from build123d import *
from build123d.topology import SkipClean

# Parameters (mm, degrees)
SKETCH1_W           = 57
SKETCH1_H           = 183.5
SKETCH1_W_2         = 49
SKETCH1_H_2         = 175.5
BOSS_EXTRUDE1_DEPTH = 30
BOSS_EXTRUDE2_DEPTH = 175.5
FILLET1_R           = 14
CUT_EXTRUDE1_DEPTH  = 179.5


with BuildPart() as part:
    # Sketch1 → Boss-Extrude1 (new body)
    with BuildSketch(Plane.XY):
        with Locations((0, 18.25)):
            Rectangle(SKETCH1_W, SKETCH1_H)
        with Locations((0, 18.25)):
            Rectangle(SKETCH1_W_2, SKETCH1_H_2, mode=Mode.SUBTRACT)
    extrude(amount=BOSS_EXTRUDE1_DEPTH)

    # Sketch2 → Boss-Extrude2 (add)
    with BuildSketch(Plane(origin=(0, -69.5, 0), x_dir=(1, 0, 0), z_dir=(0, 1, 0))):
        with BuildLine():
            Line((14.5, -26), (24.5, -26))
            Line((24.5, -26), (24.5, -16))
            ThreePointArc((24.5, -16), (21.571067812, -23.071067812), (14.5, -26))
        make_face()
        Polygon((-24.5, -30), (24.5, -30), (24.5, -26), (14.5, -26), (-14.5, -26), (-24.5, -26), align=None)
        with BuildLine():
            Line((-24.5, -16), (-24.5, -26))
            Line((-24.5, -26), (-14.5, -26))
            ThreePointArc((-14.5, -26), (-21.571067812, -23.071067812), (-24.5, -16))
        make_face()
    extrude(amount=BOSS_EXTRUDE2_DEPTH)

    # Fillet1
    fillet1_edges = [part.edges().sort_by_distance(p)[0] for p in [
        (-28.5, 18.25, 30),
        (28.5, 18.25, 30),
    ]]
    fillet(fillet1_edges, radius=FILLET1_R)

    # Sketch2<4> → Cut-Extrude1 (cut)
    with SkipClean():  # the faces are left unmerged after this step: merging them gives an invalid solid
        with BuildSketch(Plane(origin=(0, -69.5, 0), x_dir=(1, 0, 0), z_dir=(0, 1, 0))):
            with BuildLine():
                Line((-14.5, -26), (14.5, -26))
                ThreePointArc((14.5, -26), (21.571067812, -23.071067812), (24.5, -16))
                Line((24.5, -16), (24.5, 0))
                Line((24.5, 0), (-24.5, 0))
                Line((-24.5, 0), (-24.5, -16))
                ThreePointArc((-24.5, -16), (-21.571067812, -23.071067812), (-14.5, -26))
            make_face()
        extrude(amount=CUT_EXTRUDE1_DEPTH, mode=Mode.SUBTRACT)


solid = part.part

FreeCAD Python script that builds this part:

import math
import FreeCAD as App
import Part
import Sketcher
from FreeCAD import Vector


def edges_at(feature, points):
    """Names of the edges that pass closest to the given points."""
    edges = feature.Shape.Edges
    near = lambda p: min(range(len(edges)), key=lambda i: edges[i].distToShape(Part.Vertex(*p))[0])
    return sorted({f"Edge{near(p) + 1}" for p in points})


def add_polygon(sketch, points):
    """Adds a closed chain of lines whose ends are joined by coincident constraints."""
    first, n = sketch.GeometryCount, len(points)
    for a, b in zip(points, points[1:] + points[:1]):
        sketch.addGeometry(Part.LineSegment(App.Vector(*a, 0), App.Vector(*b, 0)), False)
    for i in range(n):
        sketch.addConstraint(Sketcher.Constraint("Coincident", first + i, 2, first + (i + 1) % n, 1))

doc = App.newDocument("Part")
params = doc.addObject("Spreadsheet::Sheet", "Params")
for row, (alias, value) in enumerate([
    ("sketch1_width", "57 mm"),
    ("sketch1_width2", "49 mm"),
    ("sketch1_height", "183.5 mm"),
    ("sketch1_height2", "175.5 mm"),
    ("pad1_length", "30 mm"),
    ("sketch2_radius", "10 mm"),
    ("sketch2_width", "29 mm"),
    ("sketch2_height", "14 mm"),
    ("pad2_length", "175.5 mm"),
    ("fillet_radius", "14 mm"),
    ("sketch3_radius", "10 mm"),
    ("sketch3_width", "29 mm"),
    ("sketch3_height", "16 mm"),
    ("pocket1_length", "179.5 mm"),
], start=1):
    params.set(f"A{row}", alias)
    params.set(f"B{row}", "=" + value)
    params.setAlias(f"B{row}", alias)

body = doc.addObject("PartDesign::Body", "Body")

# Sketch on XY plane
sketch1 = body.newObject("Sketcher::SketchObject", "Sketch")
sketch1.AttachmentSupport = (doc.getObject("XY_Plane"), [""])
sketch1.MapMode = "FlatFace"
add_polygon(sketch1, [(-28, 110), (-28, -74), (28, -74), (28, 110)])  # lines 0-3
add_polygon(sketch1, [(24, -70), (-24, -70), (-24, 106), (24, 106)])  # lines 4-7
sketch1.addConstraint([
    Sketcher.Constraint("Vertical", 0),
    Sketcher.Constraint("Horizontal", 1),
    Sketcher.Constraint("Vertical", 2),
    Sketcher.Constraint("Horizontal", 3),
    Sketcher.Constraint("Horizontal", 4),
    Sketcher.Constraint("Vertical", 5),
    Sketcher.Constraint("Horizontal", 6),
    Sketcher.Constraint("Vertical", 7),
    Sketcher.Constraint("DistanceX", 1, 1, 1, 2, 57.0),
    Sketcher.Constraint("DistanceX", 4, 2, 4, 1, 49.0),
    Sketcher.Constraint("DistanceY", 0, 2, 0, 1, 183.5),
    Sketcher.Constraint("DistanceY", 5, 1, 5, 2, 175.5),
    Sketcher.Constraint("DistanceY", -1, 1, 2, 2, 110.0),
    Sketcher.Constraint("DistanceY", -1, 1, 5, 2, 106.0),
    Sketcher.Constraint("DistanceX", 0, 2, 4, 2, 4.0),
    Sketcher.Constraint("DistanceX", 0, 2, -1, 1, 28.5),
])
sketch1.setExpression("Constraints[16]", "Params.sketch1_width")
sketch1.setExpression("Constraints[17]", "Params.sketch1_width2")
sketch1.setExpression("Constraints[18]", "Params.sketch1_height")
sketch1.setExpression("Constraints[19]", "Params.sketch1_height2")
pad1 = body.newObject("PartDesign::Pad", "Pad")
pad1.Profile = sketch1
pad1.setExpression("Length", "Params.pad1_length")

# Sketch on XZ plane
sketch2 = body.newObject("Sketcher::SketchObject", "Sketch001")
sketch2.AttachmentSupport = (doc.getObject("XZ_Plane"), [""])
sketch2.MapMode = "FlatFace"
sketch2.AttachmentOffset = App.Placement(Vector(0, 0, 69.5), App.Rotation())
sketch2.addGeometry([
    Part.ArcOfCircle(Part.Circle(Vector(14, 16, 0), Vector(0, 0, 1), 10), math.radians(0), math.radians(90)),  # 0
    Part.LineSegment(Vector(14, 26, 0), Vector(-14, 26, 0)),  # 1
    Part.ArcOfCircle(Part.Circle(Vector(-14, 16, 0), Vector(0, 0, 1), 10), math.radians(90), math.radians(180)),  # 2
    Part.LineSegment(Vector(-24, 16, 0), Vector(-24, 30, 0)),  # 3
    Part.LineSegment(Vector(-24, 30, 0), Vector(24, 30, 0)),  # 4
    Part.LineSegment(Vector(24, 30, 0), Vector(24, 16, 0)),  # 5
], False)
sketch2.addConstraint([
    Sketcher.Constraint("Tangent", 0, 2, 1, 1),
    Sketcher.Constraint("Tangent", 1, 2, 2, 1),
    Sketcher.Constraint("Tangent", 2, 2, 3, 1),
    Sketcher.Constraint("Coincident", 3, 2, 4, 1),
    Sketcher.Constraint("Coincident", 4, 2, 5, 1),
    Sketcher.Constraint("Tangent", 5, 2, 0, 1),
    Sketcher.Constraint("Horizontal", 1),
    Sketcher.Constraint("Vertical", 3),
    Sketcher.Constraint("Horizontal", 4),
    Sketcher.Constraint("Vertical", 5),
    Sketcher.Constraint("Equal", 0, 2),
    Sketcher.Constraint("Radius", 0, 10.0),
    Sketcher.Constraint("DistanceX", 1, 2, 1, 1, 29.0),
    Sketcher.Constraint("DistanceY", 3, 1, 3, 2, 14.0),
    Sketcher.Constraint("DistanceY", -1, 1, 0, 3, 16.0),
    Sketcher.Constraint("DistanceX", -1, 1, 0, 3, 14.5),
])
sketch2.setExpression("Constraints[11]", "Params.sketch2_radius")
sketch2.setExpression("Constraints[12]", "Params.sketch2_width")
sketch2.setExpression("Constraints[13]", "Params.sketch2_height")
pad2 = body.newObject("PartDesign::Pad", "Pad001")
pad2.Profile = sketch2
pad2.setExpression("Length", "Params.pad2_length")
pad2.Reversed = True
doc.recompute()

fillet = body.newObject("PartDesign::Fillet", "Fillet")
fillet.Base = (pad2, edges_at(pad2, [(-28.5, 18.25, 30), (28.5, 18.25, 30)]))
fillet.setExpression("Radius", "Params.fillet_radius")

# Sketch on XZ plane
sketch3 = body.newObject("Sketcher::SketchObject", "Sketch002")
sketch3.AttachmentSupport = (doc.getObject("XZ_Plane"), [""])
sketch3.MapMode = "FlatFace"
sketch3.AttachmentOffset = App.Placement(Vector(0, 0, 69.5), App.Rotation())
sketch3.addGeometry([
    Part.LineSegment(Vector(-14, 26, 0), Vector(14, 26, 0)),  # 0
    Part.ArcOfCircle(Part.Circle(Vector(14, 16, 0), Vector(0, 0, 1), 10), math.radians(0), math.radians(90)),  # 1
    Part.LineSegment(Vector(24, 16, 0), Vector(24, 0, 0)),  # 2
    Part.LineSegment(Vector(24, 0, 0), Vector(-24, 0, 0)),  # 3
    Part.LineSegment(Vector(-24, 0, 0), Vector(-24, 16, 0)),  # 4
    Part.ArcOfCircle(Part.Circle(Vector(-14, 16, 0), Vector(0, 0, 1), 10), math.radians(90), math.radians(180)),  # 5
], False)
sketch3.addConstraint([
    Sketcher.Constraint("Tangent", 0, 2, 1, 2),
    Sketcher.Constraint("Tangent", 1, 1, 2, 1),
    Sketcher.Constraint("Coincident", 2, 2, 3, 1),
    Sketcher.Constraint("Coincident", 3, 2, 4, 1),
    Sketcher.Constraint("Tangent", 4, 2, 5, 2),
    Sketcher.Constraint("Tangent", 5, 1, 0, 1),
    Sketcher.Constraint("Horizontal", 0),
    Sketcher.Constraint("Vertical", 2),
    Sketcher.Constraint("Horizontal", 3),
    Sketcher.Constraint("Vertical", 4),
    Sketcher.Constraint("Equal", 1, 5),
    Sketcher.Constraint("Symmetric", 2, 2, 3, 2, -1, 1),
    Sketcher.Constraint("Radius", 1, 10.0),
    Sketcher.Constraint("DistanceX", 0, 1, 0, 2, 29.0),
    Sketcher.Constraint("DistanceY", 2, 2, 2, 1, 16.0),
])
sketch3.setExpression("Constraints[12]", "Params.sketch3_radius")
sketch3.setExpression("Constraints[13]", "Params.sketch3_width")
sketch3.setExpression("Constraints[14]", "Params.sketch3_height")
pocket1 = body.newObject("PartDesign::Pocket", "Pocket")
pocket1.Profile = sketch3
pocket1.setExpression("Length", "Params.pocket1_length")

doc.recompute()
